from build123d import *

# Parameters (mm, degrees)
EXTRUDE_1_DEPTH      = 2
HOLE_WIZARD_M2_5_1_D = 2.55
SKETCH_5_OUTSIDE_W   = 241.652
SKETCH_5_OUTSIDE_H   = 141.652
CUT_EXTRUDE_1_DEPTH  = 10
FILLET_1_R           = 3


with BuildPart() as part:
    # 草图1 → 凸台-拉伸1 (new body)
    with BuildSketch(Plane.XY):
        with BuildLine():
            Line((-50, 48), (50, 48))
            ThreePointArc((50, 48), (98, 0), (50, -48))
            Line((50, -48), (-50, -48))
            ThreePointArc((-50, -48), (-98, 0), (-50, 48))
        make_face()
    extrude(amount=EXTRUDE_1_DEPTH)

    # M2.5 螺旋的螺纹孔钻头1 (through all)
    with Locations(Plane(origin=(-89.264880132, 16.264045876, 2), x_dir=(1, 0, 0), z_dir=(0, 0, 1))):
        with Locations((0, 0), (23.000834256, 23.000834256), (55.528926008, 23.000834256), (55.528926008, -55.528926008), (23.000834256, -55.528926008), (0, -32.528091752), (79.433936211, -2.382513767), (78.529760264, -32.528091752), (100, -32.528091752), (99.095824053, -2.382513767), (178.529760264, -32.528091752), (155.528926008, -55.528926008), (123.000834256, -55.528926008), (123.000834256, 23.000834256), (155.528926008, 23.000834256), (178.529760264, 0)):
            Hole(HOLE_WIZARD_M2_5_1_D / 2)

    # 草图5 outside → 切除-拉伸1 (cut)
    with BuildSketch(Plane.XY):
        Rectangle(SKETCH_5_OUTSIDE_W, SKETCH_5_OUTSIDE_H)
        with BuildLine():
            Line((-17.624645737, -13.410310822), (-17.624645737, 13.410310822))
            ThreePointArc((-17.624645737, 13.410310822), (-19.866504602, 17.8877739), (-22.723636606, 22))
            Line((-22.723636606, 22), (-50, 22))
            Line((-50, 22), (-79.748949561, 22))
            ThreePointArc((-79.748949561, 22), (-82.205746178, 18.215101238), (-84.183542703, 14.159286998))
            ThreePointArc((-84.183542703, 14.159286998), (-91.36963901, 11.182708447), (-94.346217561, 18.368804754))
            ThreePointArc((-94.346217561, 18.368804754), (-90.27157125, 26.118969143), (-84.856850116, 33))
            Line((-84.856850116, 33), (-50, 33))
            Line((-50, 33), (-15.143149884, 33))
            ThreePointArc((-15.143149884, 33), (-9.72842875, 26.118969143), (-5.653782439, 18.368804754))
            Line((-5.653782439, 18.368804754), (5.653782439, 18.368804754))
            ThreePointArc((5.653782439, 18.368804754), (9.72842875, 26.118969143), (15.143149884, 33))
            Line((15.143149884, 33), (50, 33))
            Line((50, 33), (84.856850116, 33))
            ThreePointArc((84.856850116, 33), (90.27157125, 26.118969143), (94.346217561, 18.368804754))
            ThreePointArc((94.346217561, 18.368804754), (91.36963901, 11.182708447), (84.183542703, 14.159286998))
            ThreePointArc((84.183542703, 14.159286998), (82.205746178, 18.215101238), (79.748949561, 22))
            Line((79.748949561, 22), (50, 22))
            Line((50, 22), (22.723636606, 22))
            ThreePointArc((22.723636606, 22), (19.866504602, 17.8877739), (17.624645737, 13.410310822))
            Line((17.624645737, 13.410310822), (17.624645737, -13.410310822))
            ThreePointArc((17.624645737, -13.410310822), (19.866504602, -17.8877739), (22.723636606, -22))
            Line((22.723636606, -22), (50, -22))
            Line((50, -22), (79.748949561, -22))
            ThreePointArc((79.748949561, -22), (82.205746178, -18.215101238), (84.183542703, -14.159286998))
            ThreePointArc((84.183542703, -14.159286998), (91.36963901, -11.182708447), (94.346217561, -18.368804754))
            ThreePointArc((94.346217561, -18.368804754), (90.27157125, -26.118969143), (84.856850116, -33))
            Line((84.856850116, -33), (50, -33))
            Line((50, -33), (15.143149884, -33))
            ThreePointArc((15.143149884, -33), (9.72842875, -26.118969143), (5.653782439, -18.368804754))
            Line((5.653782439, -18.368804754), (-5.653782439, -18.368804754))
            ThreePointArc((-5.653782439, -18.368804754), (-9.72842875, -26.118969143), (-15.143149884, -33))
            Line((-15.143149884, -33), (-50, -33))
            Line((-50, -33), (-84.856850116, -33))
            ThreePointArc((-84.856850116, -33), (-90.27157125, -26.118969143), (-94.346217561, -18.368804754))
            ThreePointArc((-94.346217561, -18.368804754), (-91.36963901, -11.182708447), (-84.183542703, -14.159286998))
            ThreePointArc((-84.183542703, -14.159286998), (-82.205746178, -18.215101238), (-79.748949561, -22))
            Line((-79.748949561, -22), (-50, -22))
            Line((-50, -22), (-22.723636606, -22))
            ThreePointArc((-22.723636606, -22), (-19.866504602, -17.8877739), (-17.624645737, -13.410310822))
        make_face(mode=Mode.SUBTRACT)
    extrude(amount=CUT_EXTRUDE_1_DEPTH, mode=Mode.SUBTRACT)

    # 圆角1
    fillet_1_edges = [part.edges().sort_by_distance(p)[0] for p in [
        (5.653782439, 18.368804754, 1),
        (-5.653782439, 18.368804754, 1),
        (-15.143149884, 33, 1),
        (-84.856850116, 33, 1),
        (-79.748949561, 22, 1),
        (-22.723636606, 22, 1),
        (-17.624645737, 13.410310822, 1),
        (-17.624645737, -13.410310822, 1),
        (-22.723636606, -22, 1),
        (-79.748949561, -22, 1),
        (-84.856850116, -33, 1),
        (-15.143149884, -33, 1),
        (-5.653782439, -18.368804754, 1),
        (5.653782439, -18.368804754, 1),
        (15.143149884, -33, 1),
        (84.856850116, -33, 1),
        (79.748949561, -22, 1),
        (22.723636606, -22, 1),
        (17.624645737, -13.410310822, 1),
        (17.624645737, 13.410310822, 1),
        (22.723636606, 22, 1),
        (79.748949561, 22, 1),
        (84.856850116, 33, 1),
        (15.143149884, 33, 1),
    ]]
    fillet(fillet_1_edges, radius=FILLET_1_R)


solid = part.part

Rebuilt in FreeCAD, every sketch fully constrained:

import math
import FreeCAD as App
import Part
import Sketcher
Q = App.Units.Quantity


def edges_at(feature, points):
    """Names of the edges that pass closest to the given points."""
    edges = feature.Shape.Edges
    near = lambda p: min(range(len(edges)), key=lambda i: edges[i].distToShape(Part.Vertex(*p))[0])
    return sorted({f"Edge{near(p) + 1}" for p in points})


def add_polygon(sketch, points):
    """Adds a closed chain of lines whose ends are joined by coincident constraints."""
    first, n = sketch.GeometryCount, len(points)
    for a, b in zip(points, points[1:] + points[:1]):
        sketch.addGeometry(Part.LineSegment(App.Vector(*a, 0), App.Vector(*b, 0)), False)
    for i in range(n):
        sketch.addConstraint(Sketcher.Constraint("Coincident", first + i, 2, first + (i + 1) % n, 1))

doc = App.newDocument("Part")
params = doc.addObject("Spreadsheet::Sheet", "Params")
for row, (alias, value) in enumerate([
    ("sketch1_radius", "48 mm"),
    ("sketch1_width", "100 mm"),
    ("pad1_length", "2 mm"),
    ("sketch2_diameter", "2.55 mm"),
    ("hole_diameter", "2.55 mm"),
    ("sketch3_radius", "37 mm"),
    ("sketch3_radius2", "48 mm"),
    ("pocket1_length", "10 mm"),
    ("fillet_radius", "3 mm"),
], start=1):
    params.set(f"A{row}", alias)
    params.set(f"B{row}", "=" + value)
    params.setAlias(f"B{row}", alias)

body = doc.addObject("PartDesign::Body", "Body")

# Sketch on XY plane
sketch1 = body.newObject("Sketcher::SketchObject", "Sketch")
sketch1.AttachmentSupport = (doc.getObject("XY_Plane"), [""])
sketch1.MapMode = "FlatFace"
sketch1.addGeometry(Part.LineSegment(App.Vector(50, 48, 0), App.Vector(-50, 48, 0)), False)
sketch1.addGeometry(Part.ArcOfCircle(Part.Circle(App.Vector(-50, 0, 0), App.Vector(0, 0, 1), 48), math.radians(90), math.radians(270)), False)
sketch1.addGeometry(Part.LineSegment(App.Vector(-50, -48, 0), App.Vector(50, -48, 0)), False)
sketch1.addGeometry(Part.ArcOfCircle(Part.Circle(App.Vector(50, 0, 0), App.Vector(0, 0, 1), 48), math.radians(-90), math.radians(90)), False)
sketch1.addConstraint(Sketcher.Constraint("Tangent", 0, 2, 1, 1))
sketch1.addConstraint(Sketcher.Constraint("Tangent", 1, 2, 2, 1))
sketch1.addConstraint(Sketcher.Constraint("Tangent", 2, 2, 3, 1))
sketch1.addConstraint(Sketcher.Constraint("Tangent", 3, 2, 0, 1))
sketch1.addConstraint(Sketcher.Constraint("Horizontal", 0))
sketch1.addConstraint(Sketcher.Constraint("Horizontal", 2))
sketch1.addConstraint(Sketcher.Constraint("Symmetric", 1, 3, 3, 3, -1, 1))
sketch1.addConstraint(Sketcher.Constraint("Radius", 1, Q("48 mm")))
sketch1.addConstraint(Sketcher.Constraint("DistanceX", 0, 2, 0, 1, Q("100 mm")))
sketch1.setExpression("Constraints[7]", "Params.sketch1_radius")
sketch1.setExpression("Constraints[8]", "Params.sketch1_width")
pad1 = body.newObject("PartDesign::Pad", "Pad")
pad1.Profile = sketch1
pad1.setExpression("Length", "Params.pad1_length")

# Sketch on XY plane
sketch2 = body.newObject("Sketcher::SketchObject", "Sketch001")
sketch2.AttachmentSupport = (doc.getObject("XY_Plane"), [""])
sketch2.MapMode = "FlatFace"
sketch2.AttachmentOffset = App.Placement(App.Vector(0, 0, 2), App.Rotation())
sketch2.addGeometry(Part.Circle(App.Vector(-89.26488, 16.264046, 0), App.Vector(0, 0, 1), 1.275), False)
sketch2.addGeometry(Part.Circle(App.Vector(-66.264046, 39.26488, 0), App.Vector(0, 0, 1), 1.275), False)
sketch2.addGeometry(Part.Circle(App.Vector(-33.735954, 39.26488, 0), App.Vector(0, 0, 1), 1.275), False)
sketch2.addGeometry(Part.Circle(App.Vector(-33.735954, -39.26488, 0), App.Vector(0, 0, 1), 1.275), False)
sketch2.addGeometry(Part.Circle(App.Vector(-66.264046, -39.26488, 0), App.Vector(0, 0, 1), 1.275), False)
sketch2.addGeometry(Part.Circle(App.Vector(-89.26488, -16.264046, 0), App.Vector(0, 0, 1), 1.275), False)
sketch2.addGeometry(Part.Circle(App.Vector(-9.830944, 13.881532, 0), App.Vector(0, 0, 1), 1.275), False)
sketch2.addGeometry(Part.Circle(App.Vector(-10.73512, -16.264046, 0), App.Vector(0, 0, 1), 1.275), False)
sketch2.addGeometry(Part.Circle(App.Vector(10.73512, -16.264046, 0), App.Vector(0, 0, 1), 1.275), False)
sketch2.addGeometry(Part.Circle(App.Vector(9.830944, 13.881532, 0), App.Vector(0, 0, 1), 1.275), False)
sketch2.addGeometry(Part.Circle(App.Vector(89.26488, -16.264046, 0), App.Vector(0, 0, 1), 1.275), False)
sketch2.addGeometry(Part.Circle(App.Vector(66.264046, -39.26488, 0), App.Vector(0, 0, 1), 1.275), False)
sketch2.addGeometry(Part.Circle(App.Vector(33.735954, -39.26488, 0), App.Vector(0, 0, 1), 1.275), False)
sketch2.addGeometry(Part.Circle(App.Vector(33.735954, 39.26488, 0), App.Vector(0, 0, 1), 1.275), False)
sketch2.addGeometry(Part.Circle(App.Vector(66.264046, 39.26488, 0), App.Vector(0, 0, 1), 1.275), False)
sketch2.addGeometry(Part.Circle(App.Vector(89.26488, 16.264046, 0), App.Vector(0, 0, 1), 1.275), False)
sketch2.addConstraint(Sketcher.Constraint("Equal", 0, 1))
sketch2.addConstraint(Sketcher.Constraint("Equal", 1, 2))
sketch2.addConstraint(Sketcher.Constraint("Equal", 2, 3))
sketch2.addConstraint(Sketcher.Constraint("Equal", 3, 4))
sketch2.addConstraint(Sketcher.Constraint("Equal", 4, 5))
sketch2.addConstraint(Sketcher.Constraint("Equal", 5, 6))
sketch2.addConstraint(Sketcher.Constraint("Equal", 6, 7))
sketch2.addConstraint(Sketcher.Constraint("Equal", 7, 8))
sketch2.addConstraint(Sketcher.Constraint("Equal", 8, 9))
sketch2.addConstraint(Sketcher.Constraint("Equal", 9, 10))
sketch2.addConstraint(Sketcher.Constraint("Equal", 10, 11))
sketch2.addConstraint(Sketcher.Constraint("Equal", 11, 12))
sketch2.addConstraint(Sketcher.Constraint("Equal", 12, 13))
sketch2.addConstraint(Sketcher.Constraint("Equal", 13, 14))
sketch2.addConstraint(Sketcher.Constraint("Equal", 14, 15))
sketch2.addConstraint(Sketcher.Constraint("Symmetric", 0, 3, 10, 3, -1, 1))
sketch2.addConstraint(Sketcher.Constraint("Symmetric", 1, 3, 11, 3, -1, 1))
sketch2.addConstraint(Sketcher.Constraint("Symmetric", 2, 3, 12, 3, -1, 1))
sketch2.addConstraint(Sketcher.Constraint("Symmetric", 3, 3, 13, 3, -1, 1))
sketch2.addConstraint(Sketcher.Constraint("Symmetric", 4, 3, 14, 3, -1, 1))
sketch2.addConstraint(Sketcher.Constraint("Symmetric", 5, 3, 15, 3, -1, 1))
sketch2.addConstraint(Sketcher.Constraint("Symmetric", 7, 3, 8, 3, -2))
sketch2.addConstraint(Sketcher.Constraint("Symmetric", 6, 3, 9, 3, -2))
sketch2.addConstraint(Sketcher.Constraint("Symmetric", 5, 3, 10, 3, -2))
sketch2.addConstraint(Sketcher.Constraint("Symmetric", 4, 3, 11, 3, -2))
sketch2.addConstraint(Sketcher.Constraint("Symmetric", 3, 3, 12, 3, -2))
sketch2.addConstraint(Sketcher.Constraint("Horizontal", 1, 3, 2, 3))
sketch2.addConstraint(Sketcher.Constraint("Horizontal", 5, 3, 7, 3))
sketch2.addConstraint(Sketcher.Constraint("Diameter", 0, Q("2.55 mm")))
sketch2.addConstraint(Sketcher.Constraint("DistanceX", 7, 3, 10, 3, Q("100 mm")))
sketch2.addConstraint(Sketcher.Constraint("DistanceX", 1, 3, 6, 3, Q("56.433102 mm")))
sketch2.addConstraint(Sketcher.Constraint("DistanceX", 2, 3, 9, 3, Q("43.566898 mm")))
sketch2.addConstraint(Sketcher.Constraint("DistanceX", 0, 3, -1, 1, Q("89.26488 mm")))
sketch2.addConstraint(Sketcher.Constraint("DistanceY", -1, 1, 1, 3, Q("39.26488 mm")))
sketch2.addConstraint(Sketcher.Constraint("DistanceX", 1, 3, 2, 3, Q("32.528092 mm")))
sketch2.addConstraint(Sketcher.Constraint("DistanceY", 5, 3, 0, 3, Q("32.528092 mm")))
sketch2.addConstraint(Sketcher.Constraint("DistanceY", 6, 3, 2, 3, Q("25.383348 mm")))
sketch2.setExpression("Constraints[28]", "Params.sketch2_diameter")
doc.recompute()
hole = body.newObject("PartDesign::Hole", "Hole")
hole.Profile = sketch2
hole.ThreadType = "None"
hole.setExpression("Diameter", "Params.hole_diameter")
hole.DepthType = "ThroughAll"

# Sketch on XY plane
sketch3 = body.newObject("Sketcher::SketchObject", "Sketch002")
sketch3.AttachmentSupport = (doc.getObject("XY_Plane"), [""])
sketch3.MapMode = "FlatFace"
add_polygon(sketch3, [(-120.826, 70.826), (-120.826, -70.826), (120.826, -70.826), (120.826, 70.826)])  # lines 0-3
sketch3.addGeometry(Part.ArcOfCircle(Part.Circle(App.Vector(-50, 0, 0), App.Vector(0, 0, 1), 35.042831), math.radians(-38.888229), math.radians(-22.5)), False)  # 4
sketch3.addGeometry(Part.LineSegment(App.Vector(-17.624646, -13.410311, 0), App.Vector(-17.624646, 13.410311, 0)), False)  # 5
sketch3.addGeometry(Part.ArcOfCircle(Part.Circle(App.Vector(-50, 0, 0), App.Vector(0, 0, 1), 35.042831), math.radians(22.5), math.radians(38.888229)), False)  # 6
sketch3.addGeometry(Part.LineSegment(App.Vector(-22.723637, 22, 0), App.Vector(-79.74895, 22, 0)), False)  # 7
sketch3.addGeometry(Part.ArcOfCircle(Part.Circle(App.Vector(-50, 0, 0), App.Vector(0, 0, 1), 37), math.radians(143.516263), math.radians(157.5)), False)  # 8
sketch3.addGeometry(Part.ArcOfCircle(Part.Circle(App.Vector(-89.26488, 16.264046, 0), App.Vector(0, 0, 1), 5.5), math.radians(157.5), math.radians(337.5)), False)  # 9
sketch3.addGeometry(Part.ArcOfCircle(Part.Circle(App.Vector(-50, 0, 0), App.Vector(0, 0, 1), 48), math.radians(136.567463), math.radians(157.5)), False)  # 10
sketch3.addGeometry(Part.LineSegment(App.Vector(-84.85685, 33, 0), App.Vector(-15.14315, 33, 0)), False)  # 11
sketch3.addGeometry(Part.ArcOfCircle(Part.Circle(App.Vector(-50, 0, 0), App.Vector(0, 0, 1), 48), math.radians(22.5), math.radians(43.432537)), False)  # 12
sketch3.addGeometry(Part.LineSegment(App.Vector(-5.653782, 18.368805, 0), App.Vector(5.653782, 18.368805, 0)), False)  # 13
sketch3.addGeometry(Part.ArcOfCircle(Part.Circle(App.Vector(50, 0, 0), App.Vector(0, 0, 1), 48), math.radians(136.567463), math.radians(157.5)), False)  # 14
sketch3.addGeometry(Part.LineSegment(App.Vector(15.14315, 33, 0), App.Vector(84.85685, 33, 0)), False)  # 15
sketch3.addGeometry(Part.ArcOfCircle(Part.Circle(App.Vector(50, 0, 0), App.Vector(0, 0, 1), 48), math.radians(22.5), math.radians(43.432537)), False)  # 16
sketch3.addGeometry(Part.ArcOfCircle(Part.Circle(App.Vector(89.26488, 16.264046, 0), App.Vector(0, 0, 1), 5.5), math.radians(-157.5), math.radians(22.5)), False)  # 17
sketch3.addGeometry(Part.ArcOfCircle(Part.Circle(App.Vector(50, 0, 0), App.Vector(0, 0, 1), 37), math.radians(22.5), math.radians(36.483737)), False)  # 18
sketch3.addGeometry(Part.LineSegment(App.Vector(79.74895, 22, 0), App.Vector(22.723637, 22, 0)), False)  # 19
sketch3.addGeometry(Part.ArcOfCircle(Part.Circle(App.Vector(50, 0, 0), App.Vector(0, 0, 1), 35.042831), math.radians(141.111771), math.radians(157.5)), False)  # 20
sketch3.addGeometry(Part.LineSegment(App.Vector(17.624646, 13.410311, 0), App.Vector(17.624646, -13.410311, 0)), False)  # 21
sketch3.addGeometry(Part.ArcOfCircle(Part.Circle(App.Vector(50, 0, 0), App.Vector(0, 0, 1), 35.042831), math.radians(-157.5), math.radians(-141.111771)), False)  # 22
sketch3.addGeometry(Part.LineSegment(App.Vector(22.723637, -22, 0), App.Vector(79.74895, -22, 0)), False)  # 23
sketch3.addGeometry(Part.ArcOfCircle(Part.Circle(App.Vector(50, 0, 0), App.Vector(0, 0, 1), 37), math.radians(-36.483737), math.radians(-22.5)), False)  # 24
sketch3.addGeometry(Part.ArcOfCircle(Part.Circle(App.Vector(89.26488, -16.264046, 0), App.Vector(0, 0, 1), 5.5), math.radians(-22.5), math.radians(157.5)), False)  # 25
sketch3.addGeometry(Part.ArcOfCircle(Part.Circle(App.Vector(50, 0, 0), App.Vector(0, 0, 1), 48), math.radians(-43.432537), math.radians(-22.5)), False)  # 26
sketch3.addGeometry(Part.LineSegment(App.Vector(84.85685, -33, 0), App.Vector(15.14315, -33, 0)), False)  # 27
sketch3.addGeometry(Part.ArcOfCircle(Part.Circle(App.Vector(50, 0, 0), App.Vector(0, 0, 1), 48), math.radians(-157.5), math.radians(-136.567463)), False)  # 28
sketch3.addGeometry(Part.LineSegment(App.Vector(5.653782, -18.368805, 0), App.Vector(-5.653782, -18.368805, 0)), False)  # 29
sketch3.addGeometry(Part.ArcOfCircle(Part.Circle(App.Vector(-50, 0, 0), App.Vector(0, 0, 1), 48), math.radians(-43.432537), math.radians(-22.5)), False)  # 30
sketch3.addGeometry(Part.LineSegment(App.Vector(-15.14315, -33, 0), App.Vector(-84.85685, -33, 0)), False)  # 31
sketch3.addGeometry(Part.ArcOfCircle(Part.Circle(App.Vector(-50, 0, 0), App.Vector(0, 0, 1), 48), math.radians(-157.5), math.radians(-136.567463)), False)  # 32
sketch3.addGeometry(Part.ArcOfCircle(Part.Circle(App.Vector(-89.26488, -16.264046, 0), App.Vector(0, 0, 1), 5.5), math.radians(22.5), math.radians(202.5)), False)  # 33
sketch3.addGeometry(Part.ArcOfCircle(Part.Circle(App.Vector(-50, 0, 0), App.Vector(0, 0, 1), 37), math.radians(-157.5), math.radians(-143.516263)), False)  # 34
sketch3.addGeometry(Part.LineSegment(App.Vector(-79.74895, -22, 0), App.Vector(-22.723637, -22, 0)), False)  # 35
sketch3.addConstraint(Sketcher.Constraint("Coincident", 4, 2, 5, 1))
sketch3.addConstraint(Sketcher.Constraint("Coincident", 5, 2, 6, 1))
sketch3.addConstraint(Sketcher.Constraint("Coincident", 6, 2, 7, 1))
sketch3.addConstraint(Sketcher.Constraint("Coincident", 7, 2, 8, 1))
sketch3.addConstraint(Sketcher.Constraint("Tangent", 8, 2, 9, 2))
sketch3.addConstraint(Sketcher.Constraint("Tangent", 9, 1, 10, 2))
sketch3.addConstraint(Sketcher.Constraint("Coincident", 10, 1, 11, 1))
sketch3.addConstraint(Sketcher.Constraint("Coincident", 11, 2, 12, 2))
sketch3.addConstraint(Sketcher.Constraint("Coincident", 12, 1, 13, 1))
sketch3.addConstraint(Sketcher.Constraint("Coincident", 13, 2, 14, 2))
sketch3.addConstraint(Sketcher.Constraint("Coincident", 14, 1, 15, 1))
sketch3.addConstraint(Sketcher.Constraint("Coincident", 15, 2, 16, 2))
sketch3.addConstraint(Sketcher.Constraint("Tangent", 16, 1, 17, 2))
sketch3.addConstraint(Sketcher.Constraint("Tangent", 17, 1, 18, 1))
sketch3.addConstraint(Sketcher.Constraint("Coincident", 18, 2, 19, 1))
sketch3.addConstraint(Sketcher.Constraint("Coincident", 19, 2, 20, 1))
sketch3.addConstraint(Sketcher.Constraint("Coincident", 20, 2, 21, 1))
sketch3.addConstraint(Sketcher.Constraint("Coincident", 21, 2, 22, 1))
sketch3.addConstraint(Sketcher.Constraint("Coincident", 22, 2, 23, 1))
sketch3.addConstraint(Sketcher.Constraint("Coincident", 23, 2, 24, 1))
sketch3.addConstraint(Sketcher.Constraint("Tangent", 24, 2, 25, 2))
sketch3.addConstraint(Sketcher.Constraint("Tangent", 25, 1, 26, 2))
sketch3.addConstraint(Sketcher.Constraint("Coincident", 26, 1, 27, 1))
sketch3.addConstraint(Sketcher.Constraint("Coincident", 27, 2, 28, 2))
sketch3.addConstraint(Sketcher.Constraint("Coincident", 28, 1, 29, 1))
sketch3.addConstraint(Sketcher.Constraint("Coincident", 29, 2, 30, 2))
sketch3.addConstraint(Sketcher.Constraint("Coincident", 30, 1, 31, 1))
sketch3.addConstraint(Sketcher.Constraint("Coincident", 31, 2, 32, 2))
sketch3.addConstraint(Sketcher.Constraint("Tangent", 32, 1, 33, 2))
sketch3.addConstraint(Sketcher.Constraint("Tangent", 33, 1, 34, 1))
sketch3.addConstraint(Sketcher.Constraint("Coincident", 34, 2, 35, 1))
sketch3.addConstraint(Sketcher.Constraint("Coincident", 35, 2, 4, 1))
sketch3.addConstraint(Sketcher.Constraint("Vertical", 0))
sketch3.addConstraint(Sketcher.Constraint("Horizontal", 1))
sketch3.addConstraint(Sketcher.Constraint("Vertical", 2))
sketch3.addConstraint(Sketcher.Constraint("Horizontal", 3))
sketch3.addConstraint(Sketcher.Constraint("Vertical", 5))
sketch3.addConstraint(Sketcher.Constraint("Horizontal", 7))
sketch3.addConstraint(Sketcher.Constraint("Horizontal", 11))
sketch3.addConstraint(Sketcher.Constraint("Horizontal", 13))
sketch3.addConstraint(Sketcher.Constraint("Horizontal", 15))
sketch3.addConstraint(Sketcher.Constraint("Horizontal", 19))
sketch3.addConstraint(Sketcher.Constraint("Vertical", 21))
sketch3.addConstraint(Sketcher.Constraint("Horizontal", 23))
sketch3.addConstraint(Sketcher.Constraint("Horizontal", 27))
sketch3.addConstraint(Sketcher.Constraint("Horizontal", 29))
sketch3.addConstraint(Sketcher.Constraint("Horizontal", 31))
sketch3.addConstraint(Sketcher.Constraint("Horizontal", 35))
sketch3.addConstraint(Sketcher.Constraint("Coincident", 6, 3, 4, 3))
sketch3.addConstraint(Sketcher.Constraint("Coincident", 8, 3, 4, 3))
sketch3.addConstraint(Sketcher.Constraint("Coincident", 10, 3, 4, 3))
sketch3.addConstraint(Sketcher.Constraint("Coincident", 12, 3, 4, 3))
sketch3.addConstraint(Sketcher.Constraint("Coincident", 16, 3, 14, 3))
sketch3.addConstraint(Sketcher.Constraint("Coincident", 18, 3, 14, 3))
sketch3.addConstraint(Sketcher.Constraint("Coincident", 20, 3, 14, 3))
sketch3.addConstraint(Sketcher.Constraint("Coincident", 22, 3, 14, 3))
sketch3.addConstraint(Sketcher.Constraint("Coincident", 24, 3, 14, 3))
sketch3.addConstraint(Sketcher.Constraint("Coincident", 26, 3, 14, 3))
sketch3.addConstraint(Sketcher.Constraint("Coincident", 28, 3, 14, 3))
sketch3.addConstraint(Sketcher.Constraint("Coincident", 30, 3, 4, 3))
sketch3.addConstraint(Sketcher.Constraint("Coincident", 32, 3, 4, 3))
sketch3.addConstraint(Sketcher.Constraint("Coincident", 34, 3, 4, 3))
sketch3.addConstraint(Sketcher.Constraint("Equal", 4, 6))
sketch3.addConstraint(Sketcher.Constraint("Equal", 10, 12))
sketch3.addConstraint(Sketcher.Constraint("Equal", 12, 14))
sketch3.addConstraint(Sketcher.Constraint("Equal", 14, 16))
sketch3.addConstraint(Sketcher.Constraint("Equal", 9, 17))
sketch3.addConstraint(Sketcher.Constraint("Equal", 6, 20))
sketch3.addConstraint(Sketcher.Constraint("Equal", 20, 22))
sketch3.addConstraint(Sketcher.Constraint("Equal", 18, 24))
sketch3.addConstraint(Sketcher.Constraint("Equal", 17, 25))
sketch3.addConstraint(Sketcher.Constraint("Equal", 26, 28))
sketch3.addConstraint(Sketcher.Constraint("Equal", 28, 30))
sketch3.addConstraint(Sketcher.Constraint("Equal", 30, 32))
sketch3.addConstraint(Sketcher.Constraint("Equal", 25, 33))
sketch3.addConstraint(Sketcher.Constraint("Symmetric", 4, 3, 14, 3, -1, 1))
sketch3.addConstraint(Sketcher.Constraint("Symmetric", 0, 2, 2, 2, -1, 1))
sketch3.addConstraint(Sketcher.Constraint("Symmetric", 9, 3, 17, 3, -2))
sketch3.addConstraint(Sketcher.Constraint("Horizontal", 25, 3, 33, 3))
sketch3.addConstraint(Sketcher.Constraint("Horizontal", 9, 1, 12, 1))
sketch3.addConstraint(Sketcher.Constraint("Horizontal", 11, 2, 14, 1))
sketch3.addConstraint(Sketcher.Constraint("Horizontal", 7, 2, 18, 2))
sketch3.addConstraint(Sketcher.Constraint("Horizontal", 5, 2, 20, 2))
sketch3.addConstraint(Sketcher.Constraint("Horizontal", 25, 1, 28, 1))
sketch3.addConstraint(Sketcher.Constraint("Horizontal", 27, 2, 30, 1))
sketch3.addConstraint(Sketcher.Constraint("Horizontal", 23, 2, 34, 2))
sketch3.addConstraint(Sketcher.Constraint("Vertical", 17, 3, 25, 3))
sketch3.addConstraint(Sketcher.Constraint("Vertical", 19, 2, 22, 2))
sketch3.addConstraint(Sketcher.Constraint("Vertical", 15, 2, 26, 1))
sketch3.addConstraint(Sketcher.Constraint("Radius", 8, Q("37 mm")))
sketch3.addConstraint(Sketcher.Constraint("Radius", 10, Q("48 mm")))
sketch3.addConstraint(Sketcher.Constraint("DistanceX", 4, 3, -1, 1, Q("50 mm")))
sketch3.addConstraint(Sketcher.Constraint("DistanceY", -1, 1, 6, 2, Q("22 mm")))
sketch3.addConstraint(Sketcher.Constraint("DistanceY", -1, 1, 10, 1, Q("33 mm")))
sketch3.addConstraint(Sketcher.Constraint("DistanceX", 1, 1, 1, 2, Q("241.652 mm")))
sketch3.addConstraint(Sketcher.Constraint("DistanceY", 0, 2, 0, 1, Q("141.652 mm")))
sketch3.addConstraint(Sketcher.Constraint("Radius", 4, Q("35.042831 mm")))
sketch3.addConstraint(Sketcher.Constraint("DistanceY", 5, 1, 5, 2, Q("26.820622 mm")))
sketch3.addConstraint(Sketcher.Constraint("DistanceX", 13, 1, 13, 2, Q("11.307565 mm")))
sketch3.setExpression("Constraints[93]", "Params.sketch3_radius")
sketch3.setExpression("Constraints[94]", "Params.sketch3_radius2")
pocket1 = body.newObject("PartDesign::Pocket", "Pocket")
pocket1.Profile = sketch3
pocket1.setExpression("Length", "Params.pocket1_length")
pocket1.Reversed = True
doc.recompute()

fillet = body.newObject("PartDesign::Fillet", "Fillet")
fillet.Base = (pocket1, edges_at(pocket1, [
    (5.654, 18.369, 1),
    (-5.654, 18.369, 1),
    (-15.143, 33, 1),
    (-84.857, 33, 1),
    (-79.749, 22, 1),
    (-22.724, 22, 1),
    (-17.625, 13.41, 1),
    (-17.625, -13.41, 1),
    (-22.724, -22, 1),
    (-79.749, -22, 1),
    (-84.857, -33, 1),
    (-15.143, -33, 1),
    (-5.654, -18.369, 1),
    (5.654, -18.369, 1),
    (15.143, -33, 1),
    (84.857, -33, 1),
    (79.749, -22, 1),
    (22.724, -22, 1),
    (17.625, -13.41, 1),
    (17.625, 13.41, 1),
    (22.724, 22, 1),
    (79.749, 22, 1),
    (84.857, 33, 1),
    (15.143, 33, 1),
]))
fillet.setExpression("Radius", "Params.fillet_radius")

doc.recompute()
